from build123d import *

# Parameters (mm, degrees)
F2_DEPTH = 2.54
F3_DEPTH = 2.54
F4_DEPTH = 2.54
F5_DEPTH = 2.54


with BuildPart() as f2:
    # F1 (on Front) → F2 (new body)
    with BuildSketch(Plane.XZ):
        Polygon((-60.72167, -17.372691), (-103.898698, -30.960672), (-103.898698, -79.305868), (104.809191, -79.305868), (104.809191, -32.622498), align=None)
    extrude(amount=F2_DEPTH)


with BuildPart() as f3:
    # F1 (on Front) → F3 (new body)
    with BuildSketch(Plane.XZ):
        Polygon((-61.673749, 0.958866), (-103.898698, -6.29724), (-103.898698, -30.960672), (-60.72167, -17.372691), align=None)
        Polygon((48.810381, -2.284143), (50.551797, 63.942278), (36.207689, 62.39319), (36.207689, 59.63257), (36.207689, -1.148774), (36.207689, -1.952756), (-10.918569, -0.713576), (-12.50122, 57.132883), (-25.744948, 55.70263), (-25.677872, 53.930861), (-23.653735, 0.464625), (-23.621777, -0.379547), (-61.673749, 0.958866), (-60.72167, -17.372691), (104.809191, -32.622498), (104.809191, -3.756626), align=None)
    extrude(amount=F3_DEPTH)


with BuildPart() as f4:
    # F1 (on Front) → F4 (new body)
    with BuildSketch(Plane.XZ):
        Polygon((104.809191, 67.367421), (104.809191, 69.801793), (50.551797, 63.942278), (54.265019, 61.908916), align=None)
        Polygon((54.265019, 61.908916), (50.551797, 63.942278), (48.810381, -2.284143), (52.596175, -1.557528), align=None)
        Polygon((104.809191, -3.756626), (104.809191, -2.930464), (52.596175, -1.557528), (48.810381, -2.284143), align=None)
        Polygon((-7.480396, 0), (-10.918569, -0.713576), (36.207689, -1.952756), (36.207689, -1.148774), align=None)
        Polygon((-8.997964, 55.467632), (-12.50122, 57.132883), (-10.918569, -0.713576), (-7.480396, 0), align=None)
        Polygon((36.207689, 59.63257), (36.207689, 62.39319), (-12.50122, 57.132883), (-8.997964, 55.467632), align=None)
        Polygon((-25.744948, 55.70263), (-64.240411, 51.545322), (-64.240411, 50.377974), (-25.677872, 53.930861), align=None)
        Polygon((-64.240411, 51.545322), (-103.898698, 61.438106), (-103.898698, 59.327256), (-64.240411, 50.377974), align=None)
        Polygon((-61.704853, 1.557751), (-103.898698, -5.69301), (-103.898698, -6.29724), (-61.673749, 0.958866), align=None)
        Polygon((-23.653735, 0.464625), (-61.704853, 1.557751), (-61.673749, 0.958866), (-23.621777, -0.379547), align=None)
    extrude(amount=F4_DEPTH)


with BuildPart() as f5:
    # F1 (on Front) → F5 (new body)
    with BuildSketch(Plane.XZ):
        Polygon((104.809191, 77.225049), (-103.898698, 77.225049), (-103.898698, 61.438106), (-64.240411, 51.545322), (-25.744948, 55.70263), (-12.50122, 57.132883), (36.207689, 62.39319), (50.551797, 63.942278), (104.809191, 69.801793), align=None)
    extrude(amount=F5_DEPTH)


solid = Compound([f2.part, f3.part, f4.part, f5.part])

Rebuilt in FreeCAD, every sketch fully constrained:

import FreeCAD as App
import Part
import Sketcher
Q = App.Units.Quantity

doc = App.newDocument("Part")
body = doc.addObject("PartDesign::Body", "Body")

sketch1 = body.newObject("Sketcher::SketchObject", "Sketch")
sketch1.AttachmentSupport = (doc.getObject("XZ_Plane"), [""])
sketch1.MapMode = "FlatFace"
sketch1.addGeometry(Part.LineSegment(App.Vector(-61, -17, 0), App.Vector(-104, -31, 0)), False)
sketch1.addGeometry(Part.LineSegment(App.Vector(-104, -31, 0), App.Vector(-104, -79, 0)), False)
sketch1.addGeometry(Part.LineSegment(App.Vector(-104, -79, 0), App.Vector(105, -79, 0)), False)
sketch1.addGeometry(Part.LineSegment(App.Vector(105, -79, 0), App.Vector(105, -33, 0)), False)
sketch1.addGeometry(Part.LineSegment(App.Vector(105, -33, 0), App.Vector(-61, -17, 0)), False)
sketch1.addConstraint(Sketcher.Constraint("Coincident", 0, 2, 1, 1))
sketch1.addConstraint(Sketcher.Constraint("Coincident", 1, 2, 2, 1))
sketch1.addConstraint(Sketcher.Constraint("Coincident", 2, 2, 3, 1))
sketch1.addConstraint(Sketcher.Constraint("Coincident", 3, 2, 4, 1))
sketch1.addConstraint(Sketcher.Constraint("Coincident", 4, 2, 0, 1))
sketch1.addConstraint(Sketcher.Constraint("Vertical", 1))
sketch1.addConstraint(Sketcher.Constraint("Horizontal", 2))
sketch1.addConstraint(Sketcher.Constraint("Vertical", 3))
sketch1.addConstraint(Sketcher.Constraint("DistanceX", 0, 2, -1, 1, Q("4.0904999 in")))
sketch1.addConstraint(Sketcher.Constraint("DistanceX", 2, 1, 2, 2, Q("208.707889 mm")))
sketch1.addConstraint(Sketcher.Constraint("DistanceY", 3, 1, 3, 2, Q("46.68337 mm")))
sketch1.addConstraint(Sketcher.Constraint("DistanceY", 1, 2, 1, 1, Q("48.345196 mm")))
sketch1.addConstraint(Sketcher.Constraint("DistanceY", 0, 2, -1, 1, Q("30.960672 mm")))
sketch1.addConstraint(Sketcher.Constraint("DistanceX", 4, 2, -1, 1, Q("60.72167 mm")))
sketch1.addConstraint(Sketcher.Constraint("DistanceY", 4, 2, -1, 1, Q("17.372691 mm")))
pad1 = body.newObject("PartDesign::Pad", "Pad")
pad1.Profile = sketch1
pad1.Length = Q("0.1 in")
body2 = doc.addObject("PartDesign::Body", "Body001")

sketch2 = body2.newObject("Sketcher::SketchObject", "Sketch001")
sketch2.AttachmentSupport = (doc.getObject("XZ_Plane001"), [""])
sketch2.MapMode = "FlatFace"
sketch2.addGeometry(Part.LineSegment(App.Vector(-61.7, 1, 0), App.Vector(-103.9, -6.3, 0)), False)
sketch2.addGeometry(Part.LineSegment(App.Vector(-103.9, -6.3, 0), App.Vector(-103.9, -31, 0)), False)
sketch2.addGeometry(Part.LineSegment(App.Vector(-103.9, -31, 0), App.Vector(-60.7, -17.4, 0)), False)
sketch2.addGeometry(Part.LineSegment(App.Vector(-60.7, -17.4, 0), App.Vector(104.8, -32.6, 0)), False)
sketch2.addGeometry(Part.LineSegment(App.Vector(104.8, -32.6, 0), App.Vector(104.8, -3.8, 0)), False)
sketch2.addGeometry(Part.LineSegment(App.Vector(104.8, -3.8, 0), App.Vector(48.8, -2.3, 0)), False)
sketch2.addGeometry(Part.LineSegment(App.Vector(48.8, -2.3, 0), App.Vector(50.6, 63.9, 0)), False)
sketch2.addGeometry(Part.LineSegment(App.Vector(50.6, 63.9, 0), App.Vector(36.2, 62.4, 0)), False)
sketch2.addGeometry(Part.LineSegment(App.Vector(36.2, 62.4, 0), App.Vector(36.2, -2, 0)), False)
sketch2.addGeometry(Part.LineSegment(App.Vector(36.2, -2, 0), App.Vector(-10.9, -0.7, 0)), False)
sketch2.addGeometry(Part.LineSegment(App.Vector(-10.9, -0.7, 0), App.Vector(-12.5, 57.1, 0)), False)
sketch2.addGeometry(Part.LineSegment(App.Vector(-12.5, 57.1, 0), App.Vector(-25.7, 55.7, 0)), False)
sketch2.addGeometry(Part.LineSegment(App.Vector(-25.7, 55.7, 0), App.Vector(-25.7, 53.9, 0)), False)
sketch2.addGeometry(Part.LineSegment(App.Vector(-25.7, 53.9, 0), App.Vector(-23.7, 0.5, 0)), False)
sketch2.addGeometry(Part.LineSegment(App.Vector(-23.7, 0.5, 0), App.Vector(-23.6, -0.4, 0)), False)
sketch2.addGeometry(Part.LineSegment(App.Vector(-23.6, -0.4, 0), App.Vector(-61.7, 1, 0)), False)
sketch2.addConstraint(Sketcher.Constraint("Coincident", 0, 2, 1, 1))
sketch2.addConstraint(Sketcher.Constraint("Coincident", 1, 2, 2, 1))
sketch2.addConstraint(Sketcher.Constraint("Coincident", 2, 2, 3, 1))
sketch2.addConstraint(Sketcher.Constraint("Coincident", 3, 2, 4, 1))
sketch2.addConstraint(Sketcher.Constraint("Coincident", 4, 2, 5, 1))
sketch2.addConstraint(Sketcher.Constraint("Coincident", 5, 2, 6, 1))
sketch2.addConstraint(Sketcher.Constraint("Coincident", 6, 2, 7, 1))
sketch2.addConstraint(Sketcher.Constraint("Coincident", 7, 2, 8, 1))
sketch2.addConstraint(Sketcher.Constraint("Coincident", 8, 2, 9, 1))
sketch2.addConstraint(Sketcher.Constraint("Coincident", 9, 2, 10, 1))
sketch2.addConstraint(Sketcher.Constraint("Coincident", 10, 2, 11, 1))
sketch2.addConstraint(Sketcher.Constraint("Coincident", 11, 2, 12, 1))
sketch2.addConstraint(Sketcher.Constraint("Coincident", 12, 2, 13, 1))
sketch2.addConstraint(Sketcher.Constraint("Coincident", 13, 2, 14, 1))
sketch2.addConstraint(Sketcher.Constraint("Coincident", 14, 2, 15, 1))
sketch2.addConstraint(Sketcher.Constraint("Coincident", 15, 2, 0, 1))
sketch2.addConstraint(Sketcher.Constraint("Vertical", 1))
sketch2.addConstraint(Sketcher.Constraint("Vertical", 4))
sketch2.addConstraint(Sketcher.Constraint("Vertical", 8))
sketch2.addConstraint(Sketcher.Constraint("Perpendicular", 5, 6))
sketch2.addConstraint(Sketcher.Constraint("Perpendicular", 6, 9))
sketch2.addConstraint(Sketcher.Constraint("Parallel", 7, 11))
sketch2.addConstraint(Sketcher.Constraint("Parallel", 12, 13))
sketch2.addConstraint(Sketcher.Constraint("Parallel", 13, 14))
sketch2.addConstraint(Sketcher.Constraint("DistanceX", 0, 2, -1, 1, Q("4.0904999 in")))
sketch2.addConstraint(Sketcher.Constraint("DistanceY", 1, 2, 1, 1, Q("24.663432 mm")))
sketch2.addConstraint(Sketcher.Constraint("DistanceY", 4, 1, 4, 2, Q("28.865872 mm")))
sketch2.addConstraint(Sketcher.Constraint("DistanceX", 7, 2, 4, 2, Q("68.601502 mm")))
sketch2.addConstraint(Sketcher.Constraint("DistanceX", 2, 2, 9, 2, Q("49.803101 mm")))
sketch2.addConstraint(Sketcher.Constraint("DistanceX", 10, 2, 5, 2, Q("61.311601 mm")))
sketch2.addConstraint(Sketcher.Constraint("DistanceY", 9, 2, 13, 2, Q("1.178201 mm")))
sketch2.addConstraint(Sketcher.Constraint("Distance", 12, Q("1.773038 mm")))
sketch2.addConstraint(Sketcher.Constraint("DistanceY", 8, 2, 8, 1, Q("64.345946 mm")))
sketch2.addConstraint(Sketcher.Constraint("DistanceY", 0, 2, -1, 1, Q("6.29724 mm")))
sketch2.addConstraint(Sketcher.Constraint("DistanceX", 2, 2, -1, 1, Q("60.72167 mm")))
sketch2.addConstraint(Sketcher.Constraint("DistanceY", 2, 2, -1, 1, Q("17.372691 mm")))
sketch2.addConstraint(Sketcher.Constraint("DistanceX", -1, 1, 3, 2, Q("104.809191 mm")))
sketch2.addConstraint(Sketcher.Constraint("DistanceX", -1, 1, 5, 2, Q("48.810381 mm")))
sketch2.addConstraint(Sketcher.Constraint("DistanceY", -1, 1, 6, 2, Q("63.942278 mm")))
sketch2.addConstraint(Sketcher.Constraint("DistanceY", -1, 1, 7, 2, Q("62.39319 mm")))
sketch2.addConstraint(Sketcher.Constraint("DistanceX", 11, 2, -1, 1, Q("25.744948 mm")))
sketch2.addConstraint(Sketcher.Constraint("DistanceY", -1, 1, 11, 2, Q("55.70263 mm")))
sketch2.addConstraint(Sketcher.Constraint("DistanceX", 15, 2, -1, 1, Q("61.673749 mm")))
sketch2.addConstraint(Sketcher.Constraint("DistanceY", 1, 2, 5, 2, Q("28.676529 mm")))
sketch2.addConstraint(Sketcher.Constraint("DistanceY", 4, 2, 8, 2, Q("1.80387 mm")))
sketch2.addConstraint(Sketcher.Constraint("DistanceX", 12, 2, 7, 2, Q("61.885561 mm")))
sketch2.addConstraint(Sketcher.Constraint("DistanceX", 14, 2, 9, 2, Q("12.703208 mm")))
sketch2.addConstraint(Sketcher.Constraint("DistanceY", 13, 2, 15, 2, Q("0.494241 mm")))
pad2 = body2.newObject("PartDesign::Pad", "Pad001")
pad2.Profile = sketch2
pad2.Length = Q("0.1 in")
body3 = doc.addObject("PartDesign::Body", "Body002")
body3.AllowCompound = True

sketch3 = body3.newObject("Sketcher::SketchObject", "Sketch002")
sketch3.AttachmentSupport = (doc.getObject("XZ_Plane002"), [""])
sketch3.MapMode = "FlatFace"
sketch3.addGeometry(Part.LineSegment(App.Vector(104.809191, 67.367421, 0), App.Vector(104.809191, 69.801793, 0)), False)
sketch3.addGeometry(Part.LineSegment(App.Vector(104.809191, 69.801793, 0), App.Vector(50.551797, 63.942278, 0)), False)
sketch3.addGeometry(Part.LineSegment(App.Vector(50.551797, 63.942278, 0), App.Vector(48.810381, -2.284143, 0)), False)
sketch3.addGeometry(Part.LineSegment(App.Vector(48.810381, -2.284143, 0), App.Vector(104.809191, -3.756626, 0)), False)
sketch3.addGeometry(Part.LineSegment(App.Vector(104.809191, -3.756626, 0), App.Vector(104.809191, -2.930464, 0)), False)
sketch3.addGeometry(Part.LineSegment(App.Vector(104.809191, -2.930464, 0), App.Vector(52.596175, -1.557528, 0)), False)
sketch3.addGeometry(Part.LineSegment(App.Vector(52.596175, -1.557528, 0), App.Vector(54.265019, 61.908916, 0)), False)
sketch3.addGeometry(Part.LineSegment(App.Vector(54.265019, 61.908916, 0), App.Vector(104.809191, 67.367421, 0)), False)
sketch3.addGeometry(Part.LineSegment(App.Vector(-10.918569, -0.713576, 0), App.Vector(36.207689, -1.952756, 0)), False)
sketch3.addGeometry(Part.LineSegment(App.Vector(36.207689, -1.952756, 0), App.Vector(36.207689, -1.148774, 0)), False)
sketch3.addGeometry(Part.LineSegment(App.Vector(36.207689, -1.148774, 0), App.Vector(-7.480396, 0, 0)), False)
sketch3.addGeometry(Part.LineSegment(App.Vector(-7.480396, 0, 0), App.Vector(-8.997964, 55.467632, 0)), False)
sketch3.addGeometry(Part.LineSegment(App.Vector(-8.997964, 55.467632, 0), App.Vector(36.207689, 59.63257, 0)), False)
sketch3.addGeometry(Part.LineSegment(App.Vector(36.207689, 59.63257, 0), App.Vector(36.207689, 62.39319, 0)), False)
sketch3.addGeometry(Part.LineSegment(App.Vector(36.207689, 62.39319, 0), App.Vector(-12.50122, 57.132883, 0)), False)
sketch3.addGeometry(Part.LineSegment(App.Vector(-12.50122, 57.132883, 0), App.Vector(-10.918569, -0.713576, 0)), False)
sketch3.addGeometry(Part.LineSegment(App.Vector(-25.744948, 55.70263, 0), App.Vector(-64.240411, 51.545322, 0)), False)
sketch3.addGeometry(Part.LineSegment(App.Vector(-64.240411, 51.545322, 0), App.Vector(-103.898698, 61.438106, 0)), False)
sketch3.addGeometry(Part.LineSegment(App.Vector(-103.898698, 61.438106, 0), App.Vector(-103.898698, 59.327256, 0)), False)
sketch3.addGeometry(Part.LineSegment(App.Vector(-103.898698, 59.327256, 0), App.Vector(-64.240411, 50.377974, 0)), False)
sketch3.addGeometry(Part.LineSegment(App.Vector(-64.240411, 50.377974, 0), App.Vector(-25.677872, 53.930861, 0)), False)
sketch3.addGeometry(Part.LineSegment(App.Vector(-25.677872, 53.930861, 0), App.Vector(-25.744948, 55.70263, 0)), False)
sketch3.addGeometry(Part.LineSegment(App.Vector(-61.704853, 1.557751, 0), App.Vector(-103.898698, -5.69301, 0)), False)
sketch3.addGeometry(Part.LineSegment(App.Vector(-103.898698, -5.69301, 0), App.Vector(-103.898698, -6.29724, 0)), False)
sketch3.addGeometry(Part.LineSegment(App.Vector(-103.898698, -6.29724, 0), App.Vector(-61.673749, 0.958866, 0)), False)
sketch3.addGeometry(Part.LineSegment(App.Vector(-61.673749, 0.958866, 0), App.Vector(-23.621777, -0.379547, 0)), False)
sketch3.addGeometry(Part.LineSegment(App.Vector(-23.621777, -0.379547, 0), App.Vector(-23.653735, 0.464625, 0)), False)
sketch3.addGeometry(Part.LineSegment(App.Vector(-23.653735, 0.464625, 0), App.Vector(-61.704853, 1.557751, 0)), False)
sketch3.addConstraint(Sketcher.Constraint("Coincident", 0, 2, 1, 1))
sketch3.addConstraint(Sketcher.Constraint("Coincident", 1, 2, 2, 1))
sketch3.addConstraint(Sketcher.Constraint("Coincident", 2, 2, 3, 1))
sketch3.addConstraint(Sketcher.Constraint("Coincident", 3, 2, 4, 1))
sketch3.addConstraint(Sketcher.Constraint("Coincident", 4, 2, 5, 1))
sketch3.addConstraint(Sketcher.Constraint("Coincident", 5, 2, 6, 1))
sketch3.addConstraint(Sketcher.Constraint("Coincident", 6, 2, 7, 1))
sketch3.addConstraint(Sketcher.Constraint("Coincident", 7, 2, 0, 1))
sketch3.addConstraint(Sketcher.Constraint("Coincident", 8, 2, 9, 1))
sketch3.addConstraint(Sketcher.Constraint("Coincident", 9, 2, 10, 1))
sketch3.addConstraint(Sketcher.Constraint("Coincident", 10, 2, 11, 1))
sketch3.addConstraint(Sketcher.Constraint("Coincident", 11, 2, 12, 1))
sketch3.addConstraint(Sketcher.Constraint("Coincident", 12, 2, 13, 1))
sketch3.addConstraint(Sketcher.Constraint("Coincident", 13, 2, 14, 1))
sketch3.addConstraint(Sketcher.Constraint("Coincident", 14, 2, 15, 1))
sketch3.addConstraint(Sketcher.Constraint("Coincident", 15, 2, 8, 1))
sketch3.addConstraint(Sketcher.Constraint("Coincident", 16, 2, 17, 1))
sketch3.addConstraint(Sketcher.Constraint("Coincident", 17, 2, 18, 1))
sketch3.addConstraint(Sketcher.Constraint("Coincident", 18, 2, 19, 1))
sketch3.addConstraint(Sketcher.Constraint("Coincident", 19, 2, 20, 1))
sketch3.addConstraint(Sketcher.Constraint("Coincident", 20, 2, 21, 1))
sketch3.addConstraint(Sketcher.Constraint("Coincident", 21, 2, 16, 1))
sketch3.addConstraint(Sketcher.Constraint("Coincident", 22, 2, 23, 1))
sketch3.addConstraint(Sketcher.Constraint("Coincident", 23, 2, 24, 1))
sketch3.addConstraint(Sketcher.Constraint("Coincident", 24, 2, 25, 1))
sketch3.addConstraint(Sketcher.Constraint("Coincident", 25, 2, 26, 1))
sketch3.addConstraint(Sketcher.Constraint("Coincident", 26, 2, 27, 1))
sketch3.addConstraint(Sketcher.Constraint("Coincident", 27, 2, 22, 1))
sketch3.addConstraint(Sketcher.Constraint("Vertical", 0))
sketch3.addConstraint(Sketcher.Constraint("Vertical", 4))
sketch3.addConstraint(Sketcher.Constraint("Vertical", 9))
sketch3.addConstraint(Sketcher.Constraint("Vertical", 13))
sketch3.addConstraint(Sketcher.Constraint("Vertical", 18))
sketch3.addConstraint(Sketcher.Constraint("Vertical", 23))
sketch3.addConstraint(Sketcher.Constraint("PointOnObject", 10, 2, -1))
sketch3.addConstraint(Sketcher.Constraint("DistanceX", 17, 2, -1, 1, Q("4.0904999 in")))
sketch3.addConstraint(Sketcher.Constraint("DistanceX", 22, 2, -1, 1, Q("4.0904999 in")))
sketch3.addConstraint(Sketcher.Constraint("DistanceY", 4, 1, 4, 2, Q("0.826162 mm")))
sketch3.addConstraint(Sketcher.Constraint("DistanceY", 9, 1, 9, 2, Q("0.803982 mm")))
sketch3.addConstraint(Sketcher.Constraint("DistanceY", 13, 1, 13, 2, Q("2.76062 mm")))
sketch3.addConstraint(Sketcher.Constraint("DistanceY", 18, 2, 18, 1, Q("2.11085 mm")))
sketch3.addConstraint(Sketcher.Constraint("DistanceY", 23, 2, 23, 1, Q("0.60423 mm")))
sketch3.addConstraint(Sketcher.Constraint("DistanceX", 8, 2, 4, 2, Q("68.601502 mm")))
sketch3.addConstraint(Sketcher.Constraint("DistanceY", 15, 2, 16, 2, Q("52.258898 mm")))
sketch3.addConstraint(Sketcher.Constraint("DistanceX", 16, 2, 12, 2, Q("100.4481 mm")))
sketch3.addConstraint(Sketcher.Constraint("DistanceX", 17, 2, 10, 2, Q("96.418302 mm")))
sketch3.addConstraint(Sketcher.Constraint("DistanceY", 15, 2, 26, 2, Q("1.178201 mm")))
sketch3.addConstraint(Sketcher.Constraint("DistanceY", 25, 2, 27, 2, Q("1.937298 mm")))
sketch3.addConstraint(Sketcher.Constraint("Distance", 6, Q("63.488381 mm")))
sketch3.addConstraint(Sketcher.Constraint("Distance", 11, Q("55.488388 mm")))
sketch3.addConstraint(Sketcher.Constraint("Distance", 12, Q("45.397112 mm")))
sketch3.addConstraint(Sketcher.Constraint("Distance", 14, Q("48.992128 mm")))
sketch3.addConstraint(Sketcher.Constraint("Distance", 21, Q("1.773038 mm")))
sketch3.addConstraint(Sketcher.Constraint("DistanceY", 0, 1, 0, 2, Q("2.434372 mm")))
sketch3.addConstraint(Sketcher.Constraint("DistanceX", -1, 1, 0, 2, Q("104.809191 mm")))
sketch3.addConstraint(Sketcher.Constraint("DistanceY", -1, 1, 1, 2, Q("63.942278 mm")))
sketch3.addConstraint(Sketcher.Constraint("DistanceX", -1, 1, 2, 2, Q("48.810381 mm")))
sketch3.addConstraint(Sketcher.Constraint("DistanceX", -1, 1, 3, 2, Q("104.809191 mm")))
sketch3.addConstraint(Sketcher.Constraint("DistanceX", -1, 1, 6, 2, Q("54.265019 mm")))
sketch3.addConstraint(Sketcher.Constraint("DistanceY", -1, 1, 7, 2, Q("67.367421 mm")))
sketch3.addConstraint(Sketcher.Constraint("DistanceX", -1, 1, 12, 2, Q("36.207689 mm")))
sketch3.addConstraint(Sketcher.Constraint("DistanceY", -1, 1, 12, 2, Q("59.63257 mm")))
sketch3.addConstraint(Sketcher.Constraint("DistanceX", 14, 2, -1, 1, Q("12.50122 mm")))
sketch3.addConstraint(Sketcher.Constraint("DistanceX", 15, 2, -1, 1, Q("10.918569 mm")))
sketch3.addConstraint(Sketcher.Constraint("DistanceX", 19, 2, -1, 1, Q("64.240411 mm")))
sketch3.addConstraint(Sketcher.Constraint("DistanceY", -1, 1, 20, 2, Q("53.930861 mm")))
sketch3.addConstraint(Sketcher.Constraint("DistanceX", 21, 2, -1, 1, Q("25.744948 mm")))
sketch3.addConstraint(Sketcher.Constraint("DistanceY", -1, 1, 21, 2, Q("55.70263 mm")))
sketch3.addConstraint(Sketcher.Constraint("DistanceY", 22, 2, -1, 1, Q("5.69301 mm")))
sketch3.addConstraint(Sketcher.Constraint("DistanceX", 24, 2, -1, 1, Q("61.673749 mm")))
sketch3.addConstraint(Sketcher.Constraint("DistanceY", -1, 1, 27, 2, Q("1.557751 mm")))
sketch3.addConstraint(Sketcher.Constraint("DistanceY", 2, 2, 1, 2, Q("66.226421 mm")))
sketch3.addConstraint(Sketcher.Constraint("DistanceY", 3, 2, 0, 2, Q("73.558419 mm")))
sketch3.addConstraint(Sketcher.Constraint("DistanceX", 1, 2, 5, 2, Q("2.044378 mm")))
sketch3.addConstraint(Sketcher.Constraint("DistanceY", 5, 2, 0, 2, Q("71.359321 mm")))
sketch3.addConstraint(Sketcher.Constraint("DistanceY", 2, 2, 6, 2, Q("64.193059 mm")))
sketch3.addConstraint(Sketcher.Constraint("DistanceY", 4, 2, 8, 2, Q("0.977708 mm")))
sketch3.addConstraint(Sketcher.Constraint("DistanceY", 8, 2, 15, 2, Q("1.23918 mm")))
sketch3.addConstraint(Sketcher.Constraint("DistanceY", 19, 2, 18, 2, Q("8.949282 mm")))
sketch3.addConstraint(Sketcher.Constraint("DistanceY", 19, 2, 14, 2, Q("6.754909 mm")))
sketch3.addConstraint(Sketcher.Constraint("DistanceX", 25, 2, 15, 2, Q("12.703208 mm")))
sketch3.addConstraint(Sketcher.Constraint("DistanceX", 26, 2, 10, 2, Q("16.173339 mm")))
sketch3.addConstraint(Sketcher.Constraint("DistanceY", 26, 2, 24, 2, Q("0.494241 mm")))
sketch3.addConstraint(Sketcher.Constraint("DistanceX", 27, 2, 26, 2, Q("38.051118 mm")))
pad3 = body3.newObject("PartDesign::Pad", "Pad002")
pad3.Profile = sketch3
pad3.Length = Q("0.1 in")
body4 = doc.addObject("PartDesign::Body", "Body003")

sketch4 = body4.newObject("Sketcher::SketchObject", "Sketch003")
sketch4.AttachmentSupport = (doc.getObject("XZ_Plane003"), [""])
sketch4.MapMode = "FlatFace"
sketch4.addGeometry(Part.LineSegment(App.Vector(105, 77, 0), App.Vector(-104, 77, 0)), False)
sketch4.addGeometry(Part.LineSegment(App.Vector(-104, 77, 0), App.Vector(-104, 61, 0)), False)
sketch4.addGeometry(Part.LineSegment(App.Vector(-104, 61, 0), App.Vector(-64, 52, 0)), False)
sketch4.addGeometry(Part.LineSegment(App.Vector(-64, 52, 0), App.Vector(-26, 56, 0)), False)
sketch4.addGeometry(Part.LineSegment(App.Vector(-26, 56, 0), App.Vector(-13, 57, 0)), False)
sketch4.addGeometry(Part.LineSegment(App.Vector(-13, 57, 0), App.Vector(36, 62, 0)), False)
sketch4.addGeometry(Part.LineSegment(App.Vector(36, 62, 0), App.Vector(51, 64, 0)), False)
sketch4.addGeometry(Part.LineSegment(App.Vector(51, 64, 0), App.Vector(105, 70, 0)), False)
sketch4.addGeometry(Part.LineSegment(App.Vector(105, 70, 0), App.Vector(105, 77, 0)), False)
sketch4.addConstraint(Sketcher.Constraint("Coincident", 0, 2, 1, 1))
sketch4.addConstraint(Sketcher.Constraint("Coincident", 1, 2, 2, 1))
sketch4.addConstraint(Sketcher.Constraint("Coincident", 2, 2, 3, 1))
sketch4.addConstraint(Sketcher.Constraint("Coincident", 3, 2, 4, 1))
sketch4.addConstraint(Sketcher.Constraint("Coincident", 4, 2, 5, 1))
sketch4.addConstraint(Sketcher.Constraint("Coincident", 5, 2, 6, 1))
sketch4.addConstraint(Sketcher.Constraint("Coincident", 6, 2, 7, 1))
sketch4.addConstraint(Sketcher.Constraint("Coincident", 7, 2, 8, 1))
sketch4.addConstraint(Sketcher.Constraint("Coincident", 8, 2, 0, 1))
sketch4.addConstraint(Sketcher.Constraint("Horizontal", 0))
sketch4.addConstraint(Sketcher.Constraint("Vertical", 1))
sketch4.addConstraint(Sketcher.Constraint("Vertical", 8))
sketch4.addConstraint(Sketcher.Constraint("Parallel", 3, 4))
sketch4.addConstraint(Sketcher.Constraint("Parallel", 4, 5))
sketch4.addConstraint(Sketcher.Constraint("Parallel", 5, 6))
sketch4.addConstraint(Sketcher.Constraint("Parallel", 6, 7))
sketch4.addConstraint(Sketcher.Constraint("DistanceX", 0, 2, -1, 1, Q("4.0904999 in")))
sketch4.addConstraint(Sketcher.Constraint("DistanceX", 0, 2, 0, 1, Q("208.707889 mm")))
sketch4.addConstraint(Sketcher.Constraint("DistanceX", 2, 2, 5, 2, Q("100.4481 mm")))
sketch4.addConstraint(Sketcher.Constraint("DistanceX", 5, 2, 7, 2, Q("68.601502 mm")))
sketch4.addConstraint(Sketcher.Constraint("Distance", 5, Q("48.992128 mm")))
sketch4.addConstraint(Sketcher.Constraint("DistanceY", 1, 2, 1, 1, Q("15.786943 mm")))
sketch4.addConstraint(Sketcher.Constraint("DistanceY", 8, 1, 8, 2, Q("7.423256 mm")))
sketch4.addConstraint(Sketcher.Constraint("DistanceY", -1, 1, 0, 2, Q("77.225049 mm")))
sketch4.addConstraint(Sketcher.Constraint("DistanceX", 3, 2, -1, 1, Q("25.744948 mm")))
sketch4.addConstraint(Sketcher.Constraint("DistanceY", -1, 1, 3, 2, Q("55.70263 mm")))
sketch4.addConstraint(Sketcher.Constraint("DistanceY", -1, 1, 6, 2, Q("63.942278 mm")))
pad4 = body4.newObject("PartDesign::Pad", "Pad003")
pad4.Profile = sketch4
pad4.Length = Q("0.1 in")

doc.recompute()
